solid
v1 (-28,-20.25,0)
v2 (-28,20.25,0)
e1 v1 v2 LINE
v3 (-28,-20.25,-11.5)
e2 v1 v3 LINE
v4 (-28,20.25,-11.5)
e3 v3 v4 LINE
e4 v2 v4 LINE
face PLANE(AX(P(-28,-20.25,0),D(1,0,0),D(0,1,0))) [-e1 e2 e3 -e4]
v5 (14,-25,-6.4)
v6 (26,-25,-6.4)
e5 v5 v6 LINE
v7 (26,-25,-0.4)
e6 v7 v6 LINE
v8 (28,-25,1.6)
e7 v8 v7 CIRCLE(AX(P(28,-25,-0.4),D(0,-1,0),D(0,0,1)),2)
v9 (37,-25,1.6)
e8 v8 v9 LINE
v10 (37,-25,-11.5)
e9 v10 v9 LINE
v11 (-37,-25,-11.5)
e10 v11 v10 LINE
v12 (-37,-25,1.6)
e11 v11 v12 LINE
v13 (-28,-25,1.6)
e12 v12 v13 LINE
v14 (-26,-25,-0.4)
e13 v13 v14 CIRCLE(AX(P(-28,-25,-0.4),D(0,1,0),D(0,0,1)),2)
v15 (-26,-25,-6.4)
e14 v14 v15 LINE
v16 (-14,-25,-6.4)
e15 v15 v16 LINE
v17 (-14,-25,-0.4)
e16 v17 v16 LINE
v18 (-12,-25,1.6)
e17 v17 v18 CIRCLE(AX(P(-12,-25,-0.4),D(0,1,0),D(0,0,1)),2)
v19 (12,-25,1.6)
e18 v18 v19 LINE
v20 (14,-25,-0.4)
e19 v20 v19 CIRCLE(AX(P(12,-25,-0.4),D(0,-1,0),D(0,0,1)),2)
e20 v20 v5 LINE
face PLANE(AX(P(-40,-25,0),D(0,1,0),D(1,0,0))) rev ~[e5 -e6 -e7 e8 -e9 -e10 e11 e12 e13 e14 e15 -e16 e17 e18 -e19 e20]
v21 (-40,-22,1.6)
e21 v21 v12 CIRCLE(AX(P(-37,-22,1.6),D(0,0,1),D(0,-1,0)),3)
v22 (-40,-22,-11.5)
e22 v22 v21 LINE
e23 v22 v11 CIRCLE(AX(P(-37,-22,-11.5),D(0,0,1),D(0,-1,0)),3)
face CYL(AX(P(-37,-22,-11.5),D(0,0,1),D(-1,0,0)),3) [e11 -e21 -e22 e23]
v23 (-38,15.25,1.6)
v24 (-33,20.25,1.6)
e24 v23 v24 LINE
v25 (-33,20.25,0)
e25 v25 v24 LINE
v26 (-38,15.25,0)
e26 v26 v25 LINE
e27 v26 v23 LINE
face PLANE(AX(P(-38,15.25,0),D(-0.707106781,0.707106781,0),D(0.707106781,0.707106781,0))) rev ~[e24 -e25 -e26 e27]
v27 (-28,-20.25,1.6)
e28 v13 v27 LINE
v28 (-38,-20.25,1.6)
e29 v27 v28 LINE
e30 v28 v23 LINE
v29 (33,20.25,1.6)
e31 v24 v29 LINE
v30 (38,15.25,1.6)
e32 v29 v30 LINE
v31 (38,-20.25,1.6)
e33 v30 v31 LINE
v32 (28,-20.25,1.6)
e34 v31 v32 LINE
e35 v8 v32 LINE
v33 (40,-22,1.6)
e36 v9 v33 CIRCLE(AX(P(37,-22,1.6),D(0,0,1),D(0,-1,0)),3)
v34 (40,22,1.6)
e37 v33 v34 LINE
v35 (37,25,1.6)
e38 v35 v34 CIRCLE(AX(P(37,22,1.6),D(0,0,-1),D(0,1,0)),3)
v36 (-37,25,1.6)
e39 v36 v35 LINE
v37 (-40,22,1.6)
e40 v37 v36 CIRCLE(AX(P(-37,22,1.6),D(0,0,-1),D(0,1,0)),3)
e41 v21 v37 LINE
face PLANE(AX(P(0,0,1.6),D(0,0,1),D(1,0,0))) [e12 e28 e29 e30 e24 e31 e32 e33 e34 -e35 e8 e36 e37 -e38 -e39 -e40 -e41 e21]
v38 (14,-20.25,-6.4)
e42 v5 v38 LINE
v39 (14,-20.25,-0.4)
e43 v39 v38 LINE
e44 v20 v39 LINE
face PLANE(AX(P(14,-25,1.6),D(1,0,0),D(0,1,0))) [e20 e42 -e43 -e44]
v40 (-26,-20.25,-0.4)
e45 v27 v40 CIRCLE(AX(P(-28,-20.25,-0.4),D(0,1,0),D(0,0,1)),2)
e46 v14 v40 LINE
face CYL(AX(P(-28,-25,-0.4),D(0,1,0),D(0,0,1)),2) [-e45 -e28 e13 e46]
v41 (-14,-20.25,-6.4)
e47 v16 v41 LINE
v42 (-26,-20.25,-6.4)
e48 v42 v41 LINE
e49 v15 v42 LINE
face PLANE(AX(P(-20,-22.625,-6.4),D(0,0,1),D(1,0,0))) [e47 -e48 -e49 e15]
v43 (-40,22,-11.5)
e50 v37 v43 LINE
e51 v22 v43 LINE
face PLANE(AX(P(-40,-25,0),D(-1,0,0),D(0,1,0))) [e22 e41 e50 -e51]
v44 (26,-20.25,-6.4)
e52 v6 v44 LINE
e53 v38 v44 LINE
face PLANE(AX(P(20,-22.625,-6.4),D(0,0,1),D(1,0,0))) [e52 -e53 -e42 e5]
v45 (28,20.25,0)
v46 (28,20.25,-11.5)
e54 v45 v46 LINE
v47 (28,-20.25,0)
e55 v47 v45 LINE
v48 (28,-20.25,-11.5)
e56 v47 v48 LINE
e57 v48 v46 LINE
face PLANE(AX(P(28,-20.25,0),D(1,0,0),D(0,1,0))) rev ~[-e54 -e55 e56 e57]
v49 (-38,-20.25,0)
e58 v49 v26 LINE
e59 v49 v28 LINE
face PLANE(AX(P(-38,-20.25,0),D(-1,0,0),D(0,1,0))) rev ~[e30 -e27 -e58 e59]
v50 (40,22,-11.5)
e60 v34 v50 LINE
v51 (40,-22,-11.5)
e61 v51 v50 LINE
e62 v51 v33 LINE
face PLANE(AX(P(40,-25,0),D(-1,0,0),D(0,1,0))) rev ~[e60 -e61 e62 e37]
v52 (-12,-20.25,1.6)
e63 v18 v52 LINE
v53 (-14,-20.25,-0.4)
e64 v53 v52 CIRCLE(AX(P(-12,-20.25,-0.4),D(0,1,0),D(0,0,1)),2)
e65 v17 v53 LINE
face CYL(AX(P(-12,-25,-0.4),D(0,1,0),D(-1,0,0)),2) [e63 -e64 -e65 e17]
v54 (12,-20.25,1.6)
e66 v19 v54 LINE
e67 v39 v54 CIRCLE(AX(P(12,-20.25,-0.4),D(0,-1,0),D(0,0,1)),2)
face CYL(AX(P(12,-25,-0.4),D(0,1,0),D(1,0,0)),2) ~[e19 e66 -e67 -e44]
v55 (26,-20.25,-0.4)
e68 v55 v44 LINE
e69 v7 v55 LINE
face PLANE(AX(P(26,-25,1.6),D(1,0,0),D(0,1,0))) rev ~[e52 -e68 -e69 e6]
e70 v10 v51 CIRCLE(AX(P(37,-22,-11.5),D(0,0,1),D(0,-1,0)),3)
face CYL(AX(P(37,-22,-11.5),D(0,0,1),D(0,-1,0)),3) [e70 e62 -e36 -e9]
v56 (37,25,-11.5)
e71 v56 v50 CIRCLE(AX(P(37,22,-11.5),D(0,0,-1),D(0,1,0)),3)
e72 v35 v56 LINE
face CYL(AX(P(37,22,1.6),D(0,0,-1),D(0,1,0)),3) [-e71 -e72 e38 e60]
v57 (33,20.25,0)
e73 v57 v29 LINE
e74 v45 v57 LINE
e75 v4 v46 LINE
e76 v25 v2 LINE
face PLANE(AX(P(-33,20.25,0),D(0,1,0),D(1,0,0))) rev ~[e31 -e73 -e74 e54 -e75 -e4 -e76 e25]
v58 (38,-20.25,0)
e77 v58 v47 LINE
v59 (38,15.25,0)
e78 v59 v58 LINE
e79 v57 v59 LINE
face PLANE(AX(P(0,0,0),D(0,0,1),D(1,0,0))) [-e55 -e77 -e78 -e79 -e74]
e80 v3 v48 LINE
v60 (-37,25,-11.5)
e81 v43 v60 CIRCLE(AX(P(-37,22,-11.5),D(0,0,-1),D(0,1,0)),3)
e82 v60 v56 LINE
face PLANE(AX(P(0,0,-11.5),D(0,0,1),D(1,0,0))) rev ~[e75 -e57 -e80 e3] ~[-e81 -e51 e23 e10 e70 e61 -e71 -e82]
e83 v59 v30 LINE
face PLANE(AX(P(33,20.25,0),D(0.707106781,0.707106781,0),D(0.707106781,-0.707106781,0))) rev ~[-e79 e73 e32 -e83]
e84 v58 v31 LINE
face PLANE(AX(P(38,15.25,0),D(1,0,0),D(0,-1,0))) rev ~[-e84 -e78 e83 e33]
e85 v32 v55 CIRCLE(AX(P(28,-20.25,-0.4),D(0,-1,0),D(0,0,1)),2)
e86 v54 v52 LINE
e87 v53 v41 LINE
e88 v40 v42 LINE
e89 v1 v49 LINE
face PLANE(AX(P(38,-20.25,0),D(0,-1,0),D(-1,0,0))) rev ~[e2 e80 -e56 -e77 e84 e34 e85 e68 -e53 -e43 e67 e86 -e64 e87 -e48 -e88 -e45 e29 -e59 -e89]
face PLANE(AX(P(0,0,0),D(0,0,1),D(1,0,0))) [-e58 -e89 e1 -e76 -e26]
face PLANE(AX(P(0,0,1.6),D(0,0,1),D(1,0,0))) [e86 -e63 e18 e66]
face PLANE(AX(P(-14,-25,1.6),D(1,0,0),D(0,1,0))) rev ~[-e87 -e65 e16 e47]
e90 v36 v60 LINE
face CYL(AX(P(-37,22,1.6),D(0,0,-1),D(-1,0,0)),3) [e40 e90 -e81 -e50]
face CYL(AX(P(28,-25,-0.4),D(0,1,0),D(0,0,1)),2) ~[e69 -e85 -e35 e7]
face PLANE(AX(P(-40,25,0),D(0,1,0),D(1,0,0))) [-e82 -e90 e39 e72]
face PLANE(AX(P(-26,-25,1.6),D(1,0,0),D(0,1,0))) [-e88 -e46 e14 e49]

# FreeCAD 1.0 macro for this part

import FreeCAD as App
import Part
import Sketcher


def edges_at(feature, points):
    """Names of the edges that pass closest to the given points."""
    edges = feature.Shape.Edges
    near = lambda p: min(range(len(edges)), key=lambda i: edges[i].distToShape(Part.Vertex(*p))[0])
    return sorted({f"Edge{near(p) + 1}" for p in points})


def add_polygon(sketch, points):
    """Adds a closed chain of lines whose ends are joined by coincident constraints."""
    first, n = sketch.GeometryCount, len(points)
    for a, b in zip(points, points[1:] + points[:1]):
        sketch.addGeometry(Part.LineSegment(App.Vector(*a, 0), App.Vector(*b, 0)), False)
    for i in range(n):
        sketch.addConstraint(Sketcher.Constraint("Coincident", first + i, 2, first + (i + 1) % n, 1))

doc = App.newDocument("Part")
params = doc.addObject("Spreadsheet::Sheet", "Params")
for row, (alias, value) in enumerate([
    ("sketch1_width", "80 mm"),
    ("sketch1_height", "50 mm"),
    ("pad1_length", "11.5 mm"),
    ("sketch2_width", "80 mm"),
    ("sketch2_width2", "76 mm"),
    ("sketch2_width3", "66 mm"),
    ("sketch2_height", "50 mm"),
    ("sketch2_height2", "35.5 mm"),
    ("pad2_length", "1.6 mm"),
    ("sketch3_width", "56 mm"),
    ("sketch3_height", "40.5 mm"),
    ("sketch4_width", "12 mm"),
    ("sketch4_height", "4.75 mm"),
    ("pocket2_length", "8 mm"),
    ("fillet_radius", "3 mm"),
    ("fillet2_radius", "2 mm"),
], start=1):
    params.set(f"A{row}", alias)
    params.set(f"B{row}", "=" + value)
    params.setAlias(f"B{row}", alias)

body = doc.addObject("PartDesign::Body", "Body")

# Sketch on XY plane
sketch1 = body.newObject("Sketcher::SketchObject", "Sketch")
sketch1.AttachmentSupport = (doc.getObject("XY_Plane"), [""])
sketch1.MapMode = "FlatFace"
add_polygon(sketch1, [(-40, 25), (-40, -25), (40, -25), (40, 25)])  # lines 0-3
sketch1.addConstraint([
    Sketcher.Constraint("Vertical", 0),
    Sketcher.Constraint("Horizontal", 1),
    Sketcher.Constraint("Vertical", 2),
    Sketcher.Constraint("Horizontal", 3),
    Sketcher.Constraint("Symmetric", 0, 2, 2, 2, -1, 1),
    Sketcher.Constraint("DistanceX", 1, 1, 1, 2, 80.0),
    Sketcher.Constraint("DistanceY", 0, 2, 0, 1, 50.0),
])
sketch1.setExpression("Constraints[9]", "Params.sketch1_width")
sketch1.setExpression("Constraints[10]", "Params.sketch1_height")
pad1 = body.newObject("PartDesign::Pad", "Pad")
pad1.Profile = sketch1
pad1.setExpression("Length", "Params.pad1_length")
pad1.Reversed = True

# Sketch on XY plane
sketch2 = body.newObject("Sketcher::SketchObject", "Sketch001")
sketch2.AttachmentSupport = (doc.getObject("XY_Plane"), [""])
sketch2.MapMode = "FlatFace"
add_polygon(sketch2, [(-40, 25), (-40, -25), (40, -25), (40, 25)])  # lines 0-3
add_polygon(sketch2, [(38, 15.25), (38, -20.25), (-38, -20.25), (-38, 15.25), (-33, 20.25), (33, 20.25)])  # lines 4-9
sketch2.addConstraint([
    Sketcher.Constraint("Vertical", 0),
    Sketcher.Constraint("Horizontal", 1),
    Sketcher.Constraint("Vertical", 2),
    Sketcher.Constraint("Horizontal", 3),
    Sketcher.Constraint("Vertical", 4),
    Sketcher.Constraint("Horizontal", 5),
    Sketcher.Constraint("Vertical", 6),
    Sketcher.Constraint("Horizontal", 8),
    Sketcher.Constraint("Symmetric", 0, 2, 2, 2, -1, 1),
    Sketcher.Constraint("Symmetric", 6, 2, 9, 2, -2),
    Sketcher.Constraint("Perpendicular", 7, 9),
    Sketcher.Constraint("Equal", 7, 9),
    Sketcher.Constraint("DistanceX", 1, 1, 1, 2, 80.0),
    Sketcher.Constraint("DistanceX", 5, 2, 5, 1, 76.0),
    Sketcher.Constraint("DistanceX", 8, 1, 8, 2, 66.0),
    Sketcher.Constraint("DistanceY", 0, 2, 0, 1, 50.0),
    Sketcher.Constraint("DistanceY", 4, 2, 4, 1, 35.5),
    Sketcher.Constraint("DistanceY", 4, 2, -1, 1, 20.25),
])
sketch2.setExpression("Constraints[22]", "Params.sketch2_width")
sketch2.setExpression("Constraints[23]", "Params.sketch2_width2")
sketch2.setExpression("Constraints[24]", "Params.sketch2_width3")
sketch2.setExpression("Constraints[25]", "Params.sketch2_height")
sketch2.setExpression("Constraints[26]", "Params.sketch2_height2")
pad2 = body.newObject("PartDesign::Pad", "Pad001")
pad2.Profile = sketch2
pad2.setExpression("Length", "Params.pad2_length")

# Sketch on XY plane
sketch3 = body.newObject("Sketcher::SketchObject", "Sketch002")
sketch3.AttachmentSupport = (doc.getObject("XY_Plane"), [""])
sketch3.MapMode = "FlatFace"
add_polygon(sketch3, [(-28, 20.25), (-28, -20.25), (28, -20.25), (28, 20.25)])  # lines 0-3
sketch3.addConstraint([
    Sketcher.Constraint("Vertical", 0),
    Sketcher.Constraint("Horizontal", 1),
    Sketcher.Constraint("Vertical", 2),
    Sketcher.Constraint("Horizontal", 3),
    Sketcher.Constraint("Symmetric", 0, 2, 2, 2, -1, 1),
    Sketcher.Constraint("DistanceX", 1, 1, 1, 2, 56.0),
    Sketcher.Constraint("DistanceY", 0, 2, 0, 1, 40.5),
])
sketch3.setExpression("Constraints[9]", "Params.sketch3_width")
sketch3.setExpression("Constraints[10]", "Params.sketch3_height")
pocket1 = body.newObject("PartDesign::Pocket", "Pocket")
pocket1.Profile = sketch3
pocket1.Type = "ThroughAll"

# Sketch on XY plane
sketch4 = body.newObject("Sketcher::SketchObject", "Sketch003")
sketch4.AttachmentSupport = (doc.getObject("XY_Plane"), [""])
sketch4.MapMode = "FlatFace"
sketch4.AttachmentOffset = App.Placement(App.Vector(0, 0, 1.6), App.Rotation())
add_polygon(sketch4, [(-26, -20.25), (-26, -25), (-14, -25), (-14, -20.25)])  # lines 0-3
add_polygon(sketch4, [(14, -20.25), (14, -25), (26, -25), (26, -20.25)])  # lines 4-7
sketch4.addConstraint([
    Sketcher.Constraint("Vertical", 0),
    Sketcher.Constraint("Horizontal", 1),
    Sketcher.Constraint("Vertical", 2),
    Sketcher.Constraint("Horizontal", 3),
    Sketcher.Constraint("Vertical", 4),
    Sketcher.Constraint("Horizontal", 5),
    Sketcher.Constraint("Vertical", 6),
    Sketcher.Constraint("Horizontal", 7),
    Sketcher.Constraint("Symmetric", 1, 2, 4, 2, -2),
    Sketcher.Constraint("Symmetric", 3, 2, 6, 2, -2),
    Sketcher.Constraint("DistanceX", 1, 1, 1, 2, 12.0),
    Sketcher.Constraint("DistanceX", 0, 2, -1, 1, 26.0),
    Sketcher.Constraint("DistanceY", 0, 2, -1, 1, 25.0),
    Sketcher.Constraint("DistanceY", 0, 2, 0, 1, 4.75),
])
sketch4.setExpression("Constraints[18]", "Params.sketch4_width")
sketch4.setExpression("Constraints[21]", "Params.sketch4_height")
pocket2 = body.newObject("PartDesign::Pocket", "Pocket001")
pocket2.Profile = sketch4
pocket2.setExpression("Length", "Params.pocket2_length")
doc.recompute()

fillet = body.newObject("PartDesign::Fillet", "Fillet")
fillet.Base = (pocket2, edges_at(pocket2, [
    (-40, 25, -4.95),
    (-40, -25, -4.95),
    (40, -25, -4.95),
    (40, 25, -4.95),
]))
fillet.setExpression("Radius", "Params.fillet_radius")
doc.recompute()

fillet2 = body.newObject("PartDesign::Fillet", "Fillet001")
fillet2.Base = (fillet, edges_at(fillet, [
    (-26, -22.625, 1.6),
    (-14, -22.625, 1.6),
    (14, -22.625, 1.6),
    (26, -22.625, 1.6),
]))
fillet2.setExpression("Radius", "Params.fillet2_radius")

doc.recompute()
